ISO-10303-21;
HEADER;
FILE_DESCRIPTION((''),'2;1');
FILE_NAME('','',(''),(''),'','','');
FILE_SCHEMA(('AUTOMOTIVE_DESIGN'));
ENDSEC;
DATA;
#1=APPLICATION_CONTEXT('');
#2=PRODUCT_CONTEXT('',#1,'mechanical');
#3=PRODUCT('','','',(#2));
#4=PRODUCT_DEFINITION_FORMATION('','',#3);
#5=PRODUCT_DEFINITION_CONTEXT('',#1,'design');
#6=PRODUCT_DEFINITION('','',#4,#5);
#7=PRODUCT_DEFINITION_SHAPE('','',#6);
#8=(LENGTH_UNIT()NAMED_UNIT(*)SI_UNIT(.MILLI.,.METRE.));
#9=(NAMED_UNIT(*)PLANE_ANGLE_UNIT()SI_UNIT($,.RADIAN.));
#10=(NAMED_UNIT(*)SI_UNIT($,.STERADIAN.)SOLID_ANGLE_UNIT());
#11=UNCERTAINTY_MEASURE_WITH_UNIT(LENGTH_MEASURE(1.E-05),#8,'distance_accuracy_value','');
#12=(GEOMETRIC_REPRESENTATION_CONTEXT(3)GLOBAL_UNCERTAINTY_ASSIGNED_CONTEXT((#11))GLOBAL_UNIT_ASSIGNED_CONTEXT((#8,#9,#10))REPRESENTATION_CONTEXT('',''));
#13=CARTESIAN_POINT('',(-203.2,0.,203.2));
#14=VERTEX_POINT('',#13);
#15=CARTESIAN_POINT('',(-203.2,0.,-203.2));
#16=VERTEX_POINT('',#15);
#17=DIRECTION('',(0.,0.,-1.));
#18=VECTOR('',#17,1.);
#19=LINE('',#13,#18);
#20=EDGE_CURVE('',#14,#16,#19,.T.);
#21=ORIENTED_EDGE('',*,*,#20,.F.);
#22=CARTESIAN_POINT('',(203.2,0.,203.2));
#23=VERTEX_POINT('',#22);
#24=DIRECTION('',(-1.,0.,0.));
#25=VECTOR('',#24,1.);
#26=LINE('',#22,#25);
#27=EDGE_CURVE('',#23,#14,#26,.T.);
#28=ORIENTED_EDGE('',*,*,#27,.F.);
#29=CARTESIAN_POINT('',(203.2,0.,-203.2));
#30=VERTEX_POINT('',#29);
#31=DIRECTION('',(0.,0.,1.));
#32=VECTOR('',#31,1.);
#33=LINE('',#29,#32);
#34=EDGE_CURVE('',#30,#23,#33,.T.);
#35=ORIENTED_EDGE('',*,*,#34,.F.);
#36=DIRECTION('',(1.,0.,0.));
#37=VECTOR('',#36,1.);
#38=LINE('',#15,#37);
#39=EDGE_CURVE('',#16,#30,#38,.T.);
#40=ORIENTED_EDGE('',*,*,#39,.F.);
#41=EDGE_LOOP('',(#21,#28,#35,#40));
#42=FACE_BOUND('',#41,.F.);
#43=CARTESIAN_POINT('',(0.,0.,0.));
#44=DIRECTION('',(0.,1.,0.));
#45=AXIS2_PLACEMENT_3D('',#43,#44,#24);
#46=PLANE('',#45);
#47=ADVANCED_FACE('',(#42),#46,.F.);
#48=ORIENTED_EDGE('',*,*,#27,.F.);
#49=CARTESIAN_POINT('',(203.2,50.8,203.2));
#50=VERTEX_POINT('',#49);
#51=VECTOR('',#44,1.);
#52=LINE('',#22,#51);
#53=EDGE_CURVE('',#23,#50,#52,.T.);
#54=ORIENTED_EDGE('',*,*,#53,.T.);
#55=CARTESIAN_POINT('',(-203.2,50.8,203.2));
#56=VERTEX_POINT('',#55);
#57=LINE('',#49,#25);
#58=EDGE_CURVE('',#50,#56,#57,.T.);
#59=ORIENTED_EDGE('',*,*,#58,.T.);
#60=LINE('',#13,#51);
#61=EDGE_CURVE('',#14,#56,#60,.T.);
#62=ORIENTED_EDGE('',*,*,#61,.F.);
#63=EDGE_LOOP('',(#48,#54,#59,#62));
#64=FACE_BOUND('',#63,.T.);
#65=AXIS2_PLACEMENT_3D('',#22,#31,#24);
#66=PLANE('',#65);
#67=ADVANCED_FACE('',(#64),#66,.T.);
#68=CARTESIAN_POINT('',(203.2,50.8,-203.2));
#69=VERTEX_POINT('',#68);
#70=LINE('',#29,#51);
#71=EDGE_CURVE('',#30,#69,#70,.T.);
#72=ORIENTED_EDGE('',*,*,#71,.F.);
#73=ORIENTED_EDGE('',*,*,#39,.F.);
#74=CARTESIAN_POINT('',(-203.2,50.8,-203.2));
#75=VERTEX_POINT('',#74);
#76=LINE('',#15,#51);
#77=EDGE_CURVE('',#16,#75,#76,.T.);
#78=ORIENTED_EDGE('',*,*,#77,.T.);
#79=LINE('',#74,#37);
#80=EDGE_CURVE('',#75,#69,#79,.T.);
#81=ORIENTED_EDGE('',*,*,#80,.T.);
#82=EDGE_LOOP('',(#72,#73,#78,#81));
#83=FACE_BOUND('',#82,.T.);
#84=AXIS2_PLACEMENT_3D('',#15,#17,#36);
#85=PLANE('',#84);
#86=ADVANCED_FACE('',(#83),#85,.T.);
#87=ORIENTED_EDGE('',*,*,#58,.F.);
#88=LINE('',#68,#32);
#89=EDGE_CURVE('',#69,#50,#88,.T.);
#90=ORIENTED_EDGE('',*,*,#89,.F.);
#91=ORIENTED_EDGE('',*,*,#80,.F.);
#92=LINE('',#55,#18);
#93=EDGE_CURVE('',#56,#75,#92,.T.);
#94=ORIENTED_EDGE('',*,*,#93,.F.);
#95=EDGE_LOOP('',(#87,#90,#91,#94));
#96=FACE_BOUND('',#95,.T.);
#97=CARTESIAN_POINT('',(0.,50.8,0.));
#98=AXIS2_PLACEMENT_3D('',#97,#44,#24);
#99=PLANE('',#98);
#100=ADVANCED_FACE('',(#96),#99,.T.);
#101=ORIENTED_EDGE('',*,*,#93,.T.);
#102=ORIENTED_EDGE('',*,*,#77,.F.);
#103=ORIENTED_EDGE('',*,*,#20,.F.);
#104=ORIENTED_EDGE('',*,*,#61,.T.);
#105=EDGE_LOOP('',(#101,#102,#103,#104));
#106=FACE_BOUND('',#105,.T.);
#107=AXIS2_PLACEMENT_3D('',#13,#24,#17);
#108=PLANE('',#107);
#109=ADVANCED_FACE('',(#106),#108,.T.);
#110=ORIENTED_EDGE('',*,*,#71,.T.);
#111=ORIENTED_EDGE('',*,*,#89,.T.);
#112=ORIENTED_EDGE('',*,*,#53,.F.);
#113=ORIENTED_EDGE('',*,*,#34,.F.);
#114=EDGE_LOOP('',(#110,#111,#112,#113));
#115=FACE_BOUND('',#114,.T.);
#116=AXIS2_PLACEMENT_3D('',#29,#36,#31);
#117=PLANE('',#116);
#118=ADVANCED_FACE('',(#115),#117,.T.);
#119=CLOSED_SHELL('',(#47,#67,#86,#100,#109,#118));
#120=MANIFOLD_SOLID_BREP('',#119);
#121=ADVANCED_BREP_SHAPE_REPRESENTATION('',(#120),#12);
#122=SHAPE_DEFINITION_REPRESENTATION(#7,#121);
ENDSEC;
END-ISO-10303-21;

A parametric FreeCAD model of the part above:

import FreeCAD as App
import Part
import Sketcher
Q = App.Units.Quantity

doc = App.newDocument("Part")
body = doc.addObject("PartDesign::Body", "Body")

# Sketch on XZ plane
sketch1 = body.newObject("Sketcher::SketchObject", "Sketch")
sketch1.AttachmentSupport = (doc.getObject("XZ_Plane"), [""])
sketch1.MapMode = "FlatFace"
sketch1.addGeometry([
    Part.LineSegment(App.Vector(203, -203, 0), App.Vector(-203, -203, 0)),
    Part.LineSegment(App.Vector(-203, -203, 0), App.Vector(-203, 203, 0)),
    Part.LineSegment(App.Vector(-203, 203, 0), App.Vector(203, 203, 0)),
    Part.LineSegment(App.Vector(203, 203, 0), App.Vector(203, -203, 0)),
], False)
sketch1.addConstraint([
    Sketcher.Constraint("Coincident", 0, 2, 1, 1),
    Sketcher.Constraint("Coincident", 1, 2, 2, 1),
    Sketcher.Constraint("Coincident", 2, 2, 3, 1),
    Sketcher.Constraint("Coincident", 3, 2, 0, 1),
    Sketcher.Constraint("Horizontal", 0),
    Sketcher.Constraint("Vertical", 1),
    Sketcher.Constraint("Horizontal", 2),
    Sketcher.Constraint("Vertical", 3),
    Sketcher.Constraint("Symmetric", 0, 2, 2, 2, -1, 1),
    Sketcher.Constraint("Equal", 2, 1),
    Sketcher.Constraint("DistanceX", 0, 2, 0, 1, Q("16 in")),
])
pad1 = body.newObject("PartDesign::Pad", "Pad")
pad1.Profile = sketch1
pad1.Length = Q("2 in")
pad1.Reversed = True

doc.recompute()
